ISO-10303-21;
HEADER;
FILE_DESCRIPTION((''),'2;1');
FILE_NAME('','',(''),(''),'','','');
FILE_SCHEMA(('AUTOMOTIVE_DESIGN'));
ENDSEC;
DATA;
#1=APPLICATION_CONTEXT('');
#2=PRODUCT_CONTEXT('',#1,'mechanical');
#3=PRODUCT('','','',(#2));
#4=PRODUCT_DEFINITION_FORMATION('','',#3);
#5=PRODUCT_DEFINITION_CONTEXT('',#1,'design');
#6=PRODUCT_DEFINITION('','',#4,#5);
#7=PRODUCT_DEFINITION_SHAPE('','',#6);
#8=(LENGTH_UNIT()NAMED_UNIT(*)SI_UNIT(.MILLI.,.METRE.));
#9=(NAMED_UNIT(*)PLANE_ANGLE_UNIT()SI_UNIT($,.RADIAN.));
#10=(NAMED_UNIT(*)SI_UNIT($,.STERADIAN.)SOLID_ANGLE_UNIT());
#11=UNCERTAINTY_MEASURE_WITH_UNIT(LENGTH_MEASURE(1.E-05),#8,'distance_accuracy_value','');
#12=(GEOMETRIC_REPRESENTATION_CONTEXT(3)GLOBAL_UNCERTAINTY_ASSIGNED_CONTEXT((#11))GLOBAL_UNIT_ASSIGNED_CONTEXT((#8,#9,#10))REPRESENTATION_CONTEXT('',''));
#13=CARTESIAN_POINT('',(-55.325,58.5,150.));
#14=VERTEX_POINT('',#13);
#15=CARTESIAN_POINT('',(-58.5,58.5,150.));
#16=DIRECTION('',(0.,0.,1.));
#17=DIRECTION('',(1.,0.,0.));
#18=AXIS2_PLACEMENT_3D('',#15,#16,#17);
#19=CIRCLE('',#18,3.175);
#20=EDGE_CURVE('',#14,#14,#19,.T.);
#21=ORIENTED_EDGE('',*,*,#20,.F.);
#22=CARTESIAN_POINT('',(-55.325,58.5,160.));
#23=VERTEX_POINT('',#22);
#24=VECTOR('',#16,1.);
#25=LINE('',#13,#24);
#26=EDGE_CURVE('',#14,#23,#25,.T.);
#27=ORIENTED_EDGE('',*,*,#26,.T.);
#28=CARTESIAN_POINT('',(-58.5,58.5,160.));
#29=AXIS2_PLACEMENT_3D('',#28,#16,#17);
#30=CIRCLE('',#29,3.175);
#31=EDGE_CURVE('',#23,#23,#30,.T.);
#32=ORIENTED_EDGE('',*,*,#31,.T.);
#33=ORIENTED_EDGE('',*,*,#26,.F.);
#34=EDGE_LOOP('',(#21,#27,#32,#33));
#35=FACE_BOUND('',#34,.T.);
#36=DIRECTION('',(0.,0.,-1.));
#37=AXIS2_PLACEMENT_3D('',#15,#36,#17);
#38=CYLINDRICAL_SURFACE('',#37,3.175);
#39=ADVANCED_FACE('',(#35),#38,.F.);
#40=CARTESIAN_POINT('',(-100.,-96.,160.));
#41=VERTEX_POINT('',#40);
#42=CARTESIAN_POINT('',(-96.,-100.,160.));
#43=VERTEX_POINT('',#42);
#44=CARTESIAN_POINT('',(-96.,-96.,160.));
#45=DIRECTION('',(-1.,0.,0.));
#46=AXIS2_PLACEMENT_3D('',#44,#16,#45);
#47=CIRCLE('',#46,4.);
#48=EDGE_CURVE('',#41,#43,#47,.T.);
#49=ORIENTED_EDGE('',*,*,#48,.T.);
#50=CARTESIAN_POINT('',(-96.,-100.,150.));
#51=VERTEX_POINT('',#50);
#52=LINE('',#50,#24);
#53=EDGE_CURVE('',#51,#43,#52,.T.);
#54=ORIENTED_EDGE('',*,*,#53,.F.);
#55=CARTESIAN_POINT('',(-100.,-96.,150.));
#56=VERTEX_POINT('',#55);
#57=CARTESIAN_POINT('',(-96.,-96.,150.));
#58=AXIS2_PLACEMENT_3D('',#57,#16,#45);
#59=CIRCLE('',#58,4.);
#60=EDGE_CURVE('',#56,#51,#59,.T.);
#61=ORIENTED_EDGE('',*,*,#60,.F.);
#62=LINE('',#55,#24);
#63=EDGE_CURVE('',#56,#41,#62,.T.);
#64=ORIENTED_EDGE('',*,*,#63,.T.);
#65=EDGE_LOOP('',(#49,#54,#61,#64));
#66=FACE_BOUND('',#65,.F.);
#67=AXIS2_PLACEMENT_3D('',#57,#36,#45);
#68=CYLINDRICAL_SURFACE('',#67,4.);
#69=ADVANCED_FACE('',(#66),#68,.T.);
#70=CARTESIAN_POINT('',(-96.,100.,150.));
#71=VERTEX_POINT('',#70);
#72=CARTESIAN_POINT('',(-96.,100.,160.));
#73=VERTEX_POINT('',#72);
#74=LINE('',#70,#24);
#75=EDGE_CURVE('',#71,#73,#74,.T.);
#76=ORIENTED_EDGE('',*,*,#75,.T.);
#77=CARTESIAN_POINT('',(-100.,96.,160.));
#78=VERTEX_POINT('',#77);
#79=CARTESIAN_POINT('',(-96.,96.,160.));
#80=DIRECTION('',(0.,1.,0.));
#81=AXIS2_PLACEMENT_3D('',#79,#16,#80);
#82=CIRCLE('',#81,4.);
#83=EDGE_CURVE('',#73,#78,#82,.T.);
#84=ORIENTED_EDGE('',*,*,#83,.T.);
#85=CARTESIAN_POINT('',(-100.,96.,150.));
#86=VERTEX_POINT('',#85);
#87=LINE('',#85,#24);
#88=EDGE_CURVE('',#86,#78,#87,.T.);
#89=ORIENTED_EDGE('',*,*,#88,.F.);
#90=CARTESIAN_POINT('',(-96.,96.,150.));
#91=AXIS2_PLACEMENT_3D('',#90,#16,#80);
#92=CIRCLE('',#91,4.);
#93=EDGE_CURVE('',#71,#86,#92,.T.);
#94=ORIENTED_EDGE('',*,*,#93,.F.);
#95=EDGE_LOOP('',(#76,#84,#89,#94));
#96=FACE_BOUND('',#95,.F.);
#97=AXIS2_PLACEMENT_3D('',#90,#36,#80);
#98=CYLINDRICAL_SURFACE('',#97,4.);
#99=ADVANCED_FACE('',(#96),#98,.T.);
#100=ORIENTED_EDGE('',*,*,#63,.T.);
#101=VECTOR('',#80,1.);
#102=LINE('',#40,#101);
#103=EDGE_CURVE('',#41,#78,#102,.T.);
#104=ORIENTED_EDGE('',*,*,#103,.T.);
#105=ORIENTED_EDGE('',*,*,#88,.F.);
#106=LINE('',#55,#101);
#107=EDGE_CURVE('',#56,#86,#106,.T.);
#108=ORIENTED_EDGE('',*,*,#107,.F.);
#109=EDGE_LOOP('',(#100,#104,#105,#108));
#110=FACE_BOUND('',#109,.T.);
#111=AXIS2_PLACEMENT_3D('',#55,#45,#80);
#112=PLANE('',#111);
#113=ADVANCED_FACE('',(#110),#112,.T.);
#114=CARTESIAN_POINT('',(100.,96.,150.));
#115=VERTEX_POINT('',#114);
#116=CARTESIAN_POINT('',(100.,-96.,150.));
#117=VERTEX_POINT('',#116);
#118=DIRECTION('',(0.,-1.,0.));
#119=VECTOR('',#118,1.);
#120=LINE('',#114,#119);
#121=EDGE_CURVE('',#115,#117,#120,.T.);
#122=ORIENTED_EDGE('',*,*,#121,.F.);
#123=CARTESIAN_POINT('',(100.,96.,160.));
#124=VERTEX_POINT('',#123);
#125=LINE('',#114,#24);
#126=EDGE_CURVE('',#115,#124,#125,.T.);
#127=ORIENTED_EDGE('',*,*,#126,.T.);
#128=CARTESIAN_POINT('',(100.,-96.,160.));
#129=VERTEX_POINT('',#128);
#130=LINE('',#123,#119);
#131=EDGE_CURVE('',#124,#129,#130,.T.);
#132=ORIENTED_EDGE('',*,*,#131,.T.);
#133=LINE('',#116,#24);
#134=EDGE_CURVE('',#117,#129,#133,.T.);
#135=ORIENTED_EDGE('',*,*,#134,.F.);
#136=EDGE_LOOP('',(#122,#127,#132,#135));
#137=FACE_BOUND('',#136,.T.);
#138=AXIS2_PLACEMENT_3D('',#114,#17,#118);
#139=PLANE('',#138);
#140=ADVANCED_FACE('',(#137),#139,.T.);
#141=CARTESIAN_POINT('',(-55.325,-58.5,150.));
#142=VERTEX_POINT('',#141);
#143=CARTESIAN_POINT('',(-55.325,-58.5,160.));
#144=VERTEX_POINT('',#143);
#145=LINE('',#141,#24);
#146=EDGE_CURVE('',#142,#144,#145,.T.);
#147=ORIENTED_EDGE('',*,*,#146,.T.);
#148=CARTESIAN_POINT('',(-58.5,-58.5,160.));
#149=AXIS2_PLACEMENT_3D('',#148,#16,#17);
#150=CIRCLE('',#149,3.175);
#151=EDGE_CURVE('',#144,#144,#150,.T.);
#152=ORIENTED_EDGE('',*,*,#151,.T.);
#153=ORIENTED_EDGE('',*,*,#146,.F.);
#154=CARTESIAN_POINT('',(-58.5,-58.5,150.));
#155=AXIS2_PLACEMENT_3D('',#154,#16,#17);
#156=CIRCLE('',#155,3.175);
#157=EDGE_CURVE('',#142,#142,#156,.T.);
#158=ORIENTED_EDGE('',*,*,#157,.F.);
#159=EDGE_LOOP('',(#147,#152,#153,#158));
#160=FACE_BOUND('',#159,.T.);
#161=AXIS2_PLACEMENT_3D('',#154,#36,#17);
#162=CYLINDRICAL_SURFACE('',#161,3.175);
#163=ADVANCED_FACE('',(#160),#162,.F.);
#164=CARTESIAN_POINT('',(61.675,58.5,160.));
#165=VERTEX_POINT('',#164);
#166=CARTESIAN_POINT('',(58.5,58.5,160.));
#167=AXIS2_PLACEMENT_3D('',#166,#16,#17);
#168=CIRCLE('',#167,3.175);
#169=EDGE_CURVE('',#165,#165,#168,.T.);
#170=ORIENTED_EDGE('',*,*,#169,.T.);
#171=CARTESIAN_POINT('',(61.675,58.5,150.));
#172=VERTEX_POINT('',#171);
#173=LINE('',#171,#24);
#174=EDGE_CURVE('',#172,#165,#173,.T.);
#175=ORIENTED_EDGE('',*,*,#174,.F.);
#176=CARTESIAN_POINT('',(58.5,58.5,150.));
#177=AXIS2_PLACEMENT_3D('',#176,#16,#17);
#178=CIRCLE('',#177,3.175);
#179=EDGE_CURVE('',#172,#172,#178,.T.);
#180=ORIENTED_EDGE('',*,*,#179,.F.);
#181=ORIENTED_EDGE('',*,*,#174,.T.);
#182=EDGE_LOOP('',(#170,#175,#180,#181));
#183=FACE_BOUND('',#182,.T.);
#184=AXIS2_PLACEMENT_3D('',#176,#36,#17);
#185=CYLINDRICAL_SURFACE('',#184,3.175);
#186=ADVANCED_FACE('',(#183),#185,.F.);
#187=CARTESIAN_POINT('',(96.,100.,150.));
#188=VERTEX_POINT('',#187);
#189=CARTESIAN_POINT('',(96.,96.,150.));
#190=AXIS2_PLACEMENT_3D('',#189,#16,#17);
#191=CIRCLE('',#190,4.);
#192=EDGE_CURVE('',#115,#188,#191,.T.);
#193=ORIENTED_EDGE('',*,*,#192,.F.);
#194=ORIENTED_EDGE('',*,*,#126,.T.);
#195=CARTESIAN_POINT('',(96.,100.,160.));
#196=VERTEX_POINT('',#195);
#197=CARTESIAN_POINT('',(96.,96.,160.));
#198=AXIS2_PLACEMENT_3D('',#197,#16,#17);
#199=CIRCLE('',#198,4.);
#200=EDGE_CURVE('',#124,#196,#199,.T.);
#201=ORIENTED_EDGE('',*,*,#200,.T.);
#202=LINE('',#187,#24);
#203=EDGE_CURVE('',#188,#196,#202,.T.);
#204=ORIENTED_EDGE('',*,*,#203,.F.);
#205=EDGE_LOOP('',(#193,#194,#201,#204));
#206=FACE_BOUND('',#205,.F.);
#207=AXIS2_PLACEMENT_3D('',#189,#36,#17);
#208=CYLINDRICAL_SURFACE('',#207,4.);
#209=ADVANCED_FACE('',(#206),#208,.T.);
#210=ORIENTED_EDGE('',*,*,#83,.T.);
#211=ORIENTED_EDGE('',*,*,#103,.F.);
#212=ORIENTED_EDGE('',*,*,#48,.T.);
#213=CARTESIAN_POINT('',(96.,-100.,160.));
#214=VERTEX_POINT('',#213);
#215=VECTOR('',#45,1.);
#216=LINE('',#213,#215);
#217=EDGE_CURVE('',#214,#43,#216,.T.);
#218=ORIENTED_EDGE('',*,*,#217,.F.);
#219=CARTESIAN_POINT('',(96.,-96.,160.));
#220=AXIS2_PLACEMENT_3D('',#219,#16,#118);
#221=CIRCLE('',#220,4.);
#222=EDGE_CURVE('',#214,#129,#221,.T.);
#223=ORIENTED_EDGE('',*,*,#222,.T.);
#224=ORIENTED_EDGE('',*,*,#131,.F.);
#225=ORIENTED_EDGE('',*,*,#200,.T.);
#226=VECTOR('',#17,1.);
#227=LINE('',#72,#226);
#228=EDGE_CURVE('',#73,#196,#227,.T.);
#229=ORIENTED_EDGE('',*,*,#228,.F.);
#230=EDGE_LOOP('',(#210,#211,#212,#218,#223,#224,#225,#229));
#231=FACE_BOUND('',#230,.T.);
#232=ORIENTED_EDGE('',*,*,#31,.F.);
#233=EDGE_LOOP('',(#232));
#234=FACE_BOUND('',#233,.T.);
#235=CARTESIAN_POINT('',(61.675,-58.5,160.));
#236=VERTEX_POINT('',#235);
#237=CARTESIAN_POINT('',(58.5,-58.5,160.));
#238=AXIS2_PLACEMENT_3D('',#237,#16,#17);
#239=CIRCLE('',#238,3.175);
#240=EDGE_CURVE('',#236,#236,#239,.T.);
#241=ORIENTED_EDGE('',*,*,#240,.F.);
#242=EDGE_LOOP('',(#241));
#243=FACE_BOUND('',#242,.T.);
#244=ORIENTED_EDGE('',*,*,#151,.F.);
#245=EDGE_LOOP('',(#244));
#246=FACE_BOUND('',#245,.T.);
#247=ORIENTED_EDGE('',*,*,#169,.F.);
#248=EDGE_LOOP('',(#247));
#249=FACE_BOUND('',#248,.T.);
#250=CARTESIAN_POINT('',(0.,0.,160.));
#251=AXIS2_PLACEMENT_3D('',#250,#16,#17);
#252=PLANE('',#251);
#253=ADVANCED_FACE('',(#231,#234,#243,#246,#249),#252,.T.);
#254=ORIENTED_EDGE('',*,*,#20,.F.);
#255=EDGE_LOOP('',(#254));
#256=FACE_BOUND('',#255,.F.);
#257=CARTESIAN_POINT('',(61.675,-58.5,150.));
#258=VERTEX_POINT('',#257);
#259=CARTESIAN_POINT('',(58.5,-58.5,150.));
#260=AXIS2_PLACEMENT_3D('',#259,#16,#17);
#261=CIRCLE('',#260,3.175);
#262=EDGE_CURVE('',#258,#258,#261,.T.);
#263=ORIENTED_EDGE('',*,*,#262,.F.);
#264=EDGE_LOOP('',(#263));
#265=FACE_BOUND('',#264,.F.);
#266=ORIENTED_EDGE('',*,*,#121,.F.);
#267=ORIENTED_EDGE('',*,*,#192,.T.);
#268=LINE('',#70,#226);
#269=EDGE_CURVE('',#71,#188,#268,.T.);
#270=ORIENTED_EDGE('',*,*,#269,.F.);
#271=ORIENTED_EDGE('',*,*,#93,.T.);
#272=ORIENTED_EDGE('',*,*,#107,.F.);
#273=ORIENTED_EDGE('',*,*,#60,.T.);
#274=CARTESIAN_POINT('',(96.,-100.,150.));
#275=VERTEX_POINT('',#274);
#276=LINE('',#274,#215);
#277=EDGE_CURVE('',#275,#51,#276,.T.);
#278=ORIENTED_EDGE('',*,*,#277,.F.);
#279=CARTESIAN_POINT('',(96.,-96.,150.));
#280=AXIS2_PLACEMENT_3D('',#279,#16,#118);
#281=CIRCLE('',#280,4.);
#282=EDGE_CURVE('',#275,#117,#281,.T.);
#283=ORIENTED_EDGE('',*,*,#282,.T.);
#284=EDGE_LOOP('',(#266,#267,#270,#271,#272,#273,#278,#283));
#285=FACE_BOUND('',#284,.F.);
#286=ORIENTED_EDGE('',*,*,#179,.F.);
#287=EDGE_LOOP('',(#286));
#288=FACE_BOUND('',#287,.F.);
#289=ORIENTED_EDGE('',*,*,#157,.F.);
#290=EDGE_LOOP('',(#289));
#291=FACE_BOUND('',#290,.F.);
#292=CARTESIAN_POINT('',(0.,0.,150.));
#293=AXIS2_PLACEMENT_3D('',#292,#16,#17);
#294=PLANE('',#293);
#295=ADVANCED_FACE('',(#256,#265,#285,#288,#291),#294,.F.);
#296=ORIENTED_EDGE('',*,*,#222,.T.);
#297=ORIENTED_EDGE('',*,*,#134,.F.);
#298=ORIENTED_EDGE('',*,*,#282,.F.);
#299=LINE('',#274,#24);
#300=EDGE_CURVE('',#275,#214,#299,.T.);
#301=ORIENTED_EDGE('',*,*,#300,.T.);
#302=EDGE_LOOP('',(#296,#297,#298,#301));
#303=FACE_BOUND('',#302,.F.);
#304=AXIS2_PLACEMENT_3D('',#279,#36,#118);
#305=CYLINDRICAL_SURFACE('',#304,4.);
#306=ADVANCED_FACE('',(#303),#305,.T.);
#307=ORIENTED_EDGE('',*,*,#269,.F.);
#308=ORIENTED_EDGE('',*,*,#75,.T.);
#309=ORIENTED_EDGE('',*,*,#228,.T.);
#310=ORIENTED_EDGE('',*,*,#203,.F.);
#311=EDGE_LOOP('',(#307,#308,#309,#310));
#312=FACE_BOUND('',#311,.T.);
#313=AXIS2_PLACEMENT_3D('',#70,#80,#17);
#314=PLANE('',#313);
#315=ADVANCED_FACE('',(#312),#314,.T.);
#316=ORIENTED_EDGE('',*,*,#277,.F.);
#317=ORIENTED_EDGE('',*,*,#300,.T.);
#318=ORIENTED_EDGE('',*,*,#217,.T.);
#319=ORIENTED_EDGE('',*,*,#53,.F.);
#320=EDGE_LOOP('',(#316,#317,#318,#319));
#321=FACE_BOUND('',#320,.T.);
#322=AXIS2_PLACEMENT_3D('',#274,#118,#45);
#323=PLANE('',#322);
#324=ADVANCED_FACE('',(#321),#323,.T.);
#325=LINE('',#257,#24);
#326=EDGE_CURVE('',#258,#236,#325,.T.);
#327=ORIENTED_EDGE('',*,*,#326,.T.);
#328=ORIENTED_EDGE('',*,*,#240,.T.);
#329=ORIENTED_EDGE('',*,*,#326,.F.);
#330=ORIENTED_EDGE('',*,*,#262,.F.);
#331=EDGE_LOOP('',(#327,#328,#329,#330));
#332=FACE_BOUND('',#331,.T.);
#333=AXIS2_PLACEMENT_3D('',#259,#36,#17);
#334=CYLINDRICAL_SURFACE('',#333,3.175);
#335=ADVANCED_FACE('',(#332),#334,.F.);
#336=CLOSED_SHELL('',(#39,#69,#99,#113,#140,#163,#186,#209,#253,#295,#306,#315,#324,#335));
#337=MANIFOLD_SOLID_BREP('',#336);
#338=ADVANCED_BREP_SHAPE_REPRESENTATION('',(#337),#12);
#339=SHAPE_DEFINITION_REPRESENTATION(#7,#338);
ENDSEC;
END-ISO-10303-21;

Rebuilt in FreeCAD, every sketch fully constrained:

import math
import FreeCAD as App
import Part
import Sketcher
from FreeCAD import Vector

doc = App.newDocument("Part")
body = doc.addObject("PartDesign::Body", "Body")

# Sketch on XY plane
sketch1 = body.newObject("Sketcher::SketchObject", "Sketch")
sketch1.AttachmentSupport = (doc.getObject("XY_Plane"), [""])
sketch1.MapMode = "FlatFace"
sketch1.AttachmentOffset = App.Placement(Vector(0, 0, 150), App.Rotation())
sketch1.addGeometry(Part.LineSegment(Vector(96, 100, 0), Vector(-96, 100, 0)), False)
sketch1.addGeometry(Part.ArcOfCircle(Part.Circle(Vector(-96, 96, 0), Vector(0, 0, 1), 4), math.radians(90), math.radians(180)), False)
sketch1.addGeometry(Part.LineSegment(Vector(-100, 96, 0), Vector(-100, -96, 0)), False)
sketch1.addGeometry(Part.ArcOfCircle(Part.Circle(Vector(-96, -96, 0), Vector(0, 0, 1), 4), math.radians(180), math.radians(270)), False)
sketch1.addGeometry(Part.LineSegment(Vector(-96, -100, 0), Vector(96, -100, 0)), False)
sketch1.addGeometry(Part.ArcOfCircle(Part.Circle(Vector(96, -96, 0), Vector(0, 0, 1), 4), math.radians(-90), math.radians(0)), False)
sketch1.addGeometry(Part.LineSegment(Vector(100, -96, 0), Vector(100, 96, 0)), False)
sketch1.addGeometry(Part.ArcOfCircle(Part.Circle(Vector(96, 96, 0), Vector(0, 0, 1), 4), math.radians(0), math.radians(90)), False)
sketch1.addGeometry(Part.Circle(Vector(-58.5, -58.5, 0), Vector(0, 0, 1), 3.2), False)
sketch1.addGeometry(Part.Circle(Vector(58.5, -58.5, 0), Vector(0, 0, 1), 3.2), False)
sketch1.addGeometry(Part.Circle(Vector(-58.5, 58.5, 0), Vector(0, 0, 1), 3.2), False)
sketch1.addGeometry(Part.Circle(Vector(58.5, 58.5, 0), Vector(0, 0, 1), 3.2), False)
sketch1.addConstraint(Sketcher.Constraint("Tangent", 0, 2, 1, 1))
sketch1.addConstraint(Sketcher.Constraint("Tangent", 1, 2, 2, 1))
sketch1.addConstraint(Sketcher.Constraint("Tangent", 2, 2, 3, 1))
sketch1.addConstraint(Sketcher.Constraint("Tangent", 3, 2, 4, 1))
sketch1.addConstraint(Sketcher.Constraint("Tangent", 4, 2, 5, 1))
sketch1.addConstraint(Sketcher.Constraint("Tangent", 5, 2, 6, 1))
sketch1.addConstraint(Sketcher.Constraint("Tangent", 6, 2, 7, 1))
sketch1.addConstraint(Sketcher.Constraint("Tangent", 7, 2, 0, 1))
sketch1.addConstraint(Sketcher.Constraint("Horizontal", 0))
sketch1.addConstraint(Sketcher.Constraint("Vertical", 2))
sketch1.addConstraint(Sketcher.Constraint("Horizontal", 4))
sketch1.addConstraint(Sketcher.Constraint("Vertical", 6))
sketch1.addConstraint(Sketcher.Constraint("Equal", 1, 3))
sketch1.addConstraint(Sketcher.Constraint("Equal", 3, 5))
sketch1.addConstraint(Sketcher.Constraint("Equal", 5, 7))
sketch1.addConstraint(Sketcher.Constraint("Equal", 8, 9))
sketch1.addConstraint(Sketcher.Constraint("Equal", 9, 10))
sketch1.addConstraint(Sketcher.Constraint("Equal", 10, 11))
sketch1.addConstraint(Sketcher.Constraint("Symmetric", 1, 3, 5, 3, -1, 1))
sketch1.addConstraint(Sketcher.Constraint("Symmetric", 9, 3, 10, 3, -1, 1))
sketch1.addConstraint(Sketcher.Constraint("Symmetric", 8, 3, 11, 3, -1, 1))
sketch1.addConstraint(Sketcher.Constraint("Symmetric", 8, 3, 9, 3, -2))
sketch1.addConstraint(Sketcher.Constraint("Equal", 4, 2))
sketch1.addConstraint(Sketcher.Constraint("Radius", 1, 4.0))
sketch1.addConstraint(Sketcher.Constraint("Diameter", 8, 6.35))
sketch1.addConstraint(Sketcher.Constraint("DistanceX", 0, 2, 0, 1, 192.0))
sketch1.addConstraint(Sketcher.Constraint("DistanceX", 8, 3, 9, 3, 117.0))
sketch1.addConstraint(Sketcher.Constraint("DistanceY", 8, 3, 10, 3, 117.0))
pad1 = body.newObject("PartDesign::Pad", "Pad")
pad1.Profile = sketch1
pad1.Length = 10

doc.recompute()
